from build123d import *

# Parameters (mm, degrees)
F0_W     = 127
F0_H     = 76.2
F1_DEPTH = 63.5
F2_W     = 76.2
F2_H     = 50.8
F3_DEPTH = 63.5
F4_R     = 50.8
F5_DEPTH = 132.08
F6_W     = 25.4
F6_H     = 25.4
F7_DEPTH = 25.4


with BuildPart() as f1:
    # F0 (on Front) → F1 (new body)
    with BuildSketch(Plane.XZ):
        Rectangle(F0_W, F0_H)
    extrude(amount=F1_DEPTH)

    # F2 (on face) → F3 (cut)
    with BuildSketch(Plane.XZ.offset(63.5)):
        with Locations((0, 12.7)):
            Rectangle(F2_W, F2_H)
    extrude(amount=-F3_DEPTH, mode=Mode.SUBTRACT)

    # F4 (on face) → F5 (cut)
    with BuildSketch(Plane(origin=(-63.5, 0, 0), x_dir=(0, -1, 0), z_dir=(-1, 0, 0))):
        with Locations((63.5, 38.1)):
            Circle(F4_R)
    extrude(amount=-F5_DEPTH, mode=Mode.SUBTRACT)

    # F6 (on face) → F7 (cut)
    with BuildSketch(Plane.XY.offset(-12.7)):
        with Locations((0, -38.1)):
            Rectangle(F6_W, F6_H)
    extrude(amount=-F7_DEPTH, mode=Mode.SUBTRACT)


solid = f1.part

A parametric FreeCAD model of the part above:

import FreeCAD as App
import Part
import Sketcher
from FreeCAD import Vector
Q = App.Units.Quantity

doc = App.newDocument("Part")
body = doc.addObject("PartDesign::Body", "Body")

sketch1 = doc.addObject("Sketcher::SketchObject", "Sketch")
body.addObject(sketch1)
sketch1.AttachmentSupport = (doc.XZ_Plane, [""])
sketch1.MapMode = "FlatFace"
sketch1.addGeometry([
    Part.LineSegment(Vector(-64, 38, 0), Vector(-64, -38, 0)),
    Part.LineSegment(Vector(-64, -38, 0), Vector(64, -38, 0)),
    Part.LineSegment(Vector(64, -38, 0), Vector(64, 38, 0)),
    Part.LineSegment(Vector(64, 38, 0), Vector(-64, 38, 0)),
], False)
sketch1.addConstraint([
    Sketcher.Constraint("Coincident", 0, 2, 1, 1),
    Sketcher.Constraint("Coincident", 1, 2, 2, 1),
    Sketcher.Constraint("Coincident", 2, 2, 3, 1),
    Sketcher.Constraint("Coincident", 3, 2, 0, 1),
    Sketcher.Constraint("Vertical", 0),
    Sketcher.Constraint("Horizontal", 1),
    Sketcher.Constraint("Vertical", 2),
    Sketcher.Constraint("Horizontal", 3),
    Sketcher.Constraint("Symmetric", 0, 2, 2, 2, -1, 1),
    Sketcher.Constraint("DistanceX", 1, 1, 1, 2, Q("5 in")),
    Sketcher.Constraint("DistanceY", 0, 2, 0, 1, Q("3 in")),
])
pad1 = doc.addObject("PartDesign::Pad", "Pad")
body.addObject(pad1)
pad1.Profile = sketch1
pad1.Length = Q("2.5 in")

sketch2 = doc.addObject("Sketcher::SketchObject", "Sketch001")
body.addObject(sketch2)
sketch2.AttachmentSupport = (doc.XZ_Plane, [""])
sketch2.MapMode = "FlatFace"
sketch2.AttachmentOffset = App.Placement(Vector(0, 0, 2.5 * 25.4), App.Rotation())
sketch2.addGeometry([
    Part.LineSegment(Vector(-38, 38, 0), Vector(-38, -13, 0)),
    Part.LineSegment(Vector(-38, -13, 0), Vector(38, -13, 0)),
    Part.LineSegment(Vector(38, -13, 0), Vector(38, 38, 0)),
    Part.LineSegment(Vector(38, 38, 0), Vector(-38, 38, 0)),
], False)
sketch2.addConstraint([
    Sketcher.Constraint("Coincident", 0, 2, 1, 1),
    Sketcher.Constraint("Coincident", 1, 2, 2, 1),
    Sketcher.Constraint("Coincident", 2, 2, 3, 1),
    Sketcher.Constraint("Coincident", 3, 2, 0, 1),
    Sketcher.Constraint("Vertical", 0),
    Sketcher.Constraint("Horizontal", 1),
    Sketcher.Constraint("Vertical", 2),
    Sketcher.Constraint("Horizontal", 3),
    Sketcher.Constraint("DistanceX", 1, 1, 1, 2, Q("3 in")),
    Sketcher.Constraint("DistanceY", 0, 2, 0, 1, Q("2 in")),
    Sketcher.Constraint("DistanceX", 0, 2, -1, 1, Q("1.5 in")),
    Sketcher.Constraint("DistanceY", 0, 2, -1, 1, Q("0.5 in")),
])
pocket1 = doc.addObject("PartDesign::Pocket", "Pocket")
body.addObject(pocket1)
pocket1.Profile = sketch2
pocket1.Length = Q("2.5 in")

sketch3 = doc.addObject("Sketcher::SketchObject", "Sketch002")
body.addObject(sketch3)
sketch3.AttachmentSupport = (doc.YZ_Plane, [""])
sketch3.MapMode = "FlatFace"
sketch3.AttachmentOffset = App.Placement(Vector(0, 0, -2.5 * 25.4), App.Rotation())
sketch3.addGeometry(Part.Circle(Vector(-64, 38, 0), Vector(0, 0, 1), 51), False)
sketch3.addConstraint([
    Sketcher.Constraint("Diameter", 0, Q("4 in")),
    Sketcher.Constraint("DistanceX", 0, 3, -1, 1, Q("2.5 in")),
    Sketcher.Constraint("DistanceY", -1, 1, 0, 3, Q("1.5 in")),
])
pocket2 = doc.addObject("PartDesign::Pocket", "Pocket001")
body.addObject(pocket2)
pocket2.Profile = sketch3
pocket2.Length = Q("5.2 in")
pocket2.Reversed = True

sketch4 = doc.addObject("Sketcher::SketchObject", "Sketch003")
body.addObject(sketch4)
sketch4.AttachmentSupport = (doc.XY_Plane, [""])
sketch4.MapMode = "FlatFace"
sketch4.AttachmentOffset = App.Placement(Vector(0, 0, -0.5 * 25.4), App.Rotation())
sketch4.addGeometry([
    Part.LineSegment(Vector(-13, -25, 0), Vector(-13, -51, 0)),
    Part.LineSegment(Vector(-13, -51, 0), Vector(13, -51, 0)),
    Part.LineSegment(Vector(13, -51, 0), Vector(13, -25, 0)),
    Part.LineSegment(Vector(13, -25, 0), Vector(-13, -25, 0)),
], False)
sketch4.addConstraint([
    Sketcher.Constraint("Coincident", 0, 2, 1, 1),
    Sketcher.Constraint("Coincident", 1, 2, 2, 1),
    Sketcher.Constraint("Coincident", 2, 2, 3, 1),
    Sketcher.Constraint("Coincident", 3, 2, 0, 1),
    Sketcher.Constraint("Vertical", 0),
    Sketcher.Constraint("Horizontal", 1),
    Sketcher.Constraint("Vertical", 2),
    Sketcher.Constraint("Horizontal", 3),
    Sketcher.Constraint("Equal", 3, 0),
    Sketcher.Constraint("DistanceX", 1, 1, 1, 2, Q("1 in")),
    Sketcher.Constraint("DistanceY", 0, 2, -1, 1, Q("2 in")),
    Sketcher.Constraint("DistanceX", 0, 2, -1, 1, Q("0.5 in")),
])
pocket3 = doc.addObject("PartDesign::Pocket", "Pocket002")
body.addObject(pocket3)
pocket3.Profile = sketch4
pocket3.Length = Q("1 in")

doc.recompute()
